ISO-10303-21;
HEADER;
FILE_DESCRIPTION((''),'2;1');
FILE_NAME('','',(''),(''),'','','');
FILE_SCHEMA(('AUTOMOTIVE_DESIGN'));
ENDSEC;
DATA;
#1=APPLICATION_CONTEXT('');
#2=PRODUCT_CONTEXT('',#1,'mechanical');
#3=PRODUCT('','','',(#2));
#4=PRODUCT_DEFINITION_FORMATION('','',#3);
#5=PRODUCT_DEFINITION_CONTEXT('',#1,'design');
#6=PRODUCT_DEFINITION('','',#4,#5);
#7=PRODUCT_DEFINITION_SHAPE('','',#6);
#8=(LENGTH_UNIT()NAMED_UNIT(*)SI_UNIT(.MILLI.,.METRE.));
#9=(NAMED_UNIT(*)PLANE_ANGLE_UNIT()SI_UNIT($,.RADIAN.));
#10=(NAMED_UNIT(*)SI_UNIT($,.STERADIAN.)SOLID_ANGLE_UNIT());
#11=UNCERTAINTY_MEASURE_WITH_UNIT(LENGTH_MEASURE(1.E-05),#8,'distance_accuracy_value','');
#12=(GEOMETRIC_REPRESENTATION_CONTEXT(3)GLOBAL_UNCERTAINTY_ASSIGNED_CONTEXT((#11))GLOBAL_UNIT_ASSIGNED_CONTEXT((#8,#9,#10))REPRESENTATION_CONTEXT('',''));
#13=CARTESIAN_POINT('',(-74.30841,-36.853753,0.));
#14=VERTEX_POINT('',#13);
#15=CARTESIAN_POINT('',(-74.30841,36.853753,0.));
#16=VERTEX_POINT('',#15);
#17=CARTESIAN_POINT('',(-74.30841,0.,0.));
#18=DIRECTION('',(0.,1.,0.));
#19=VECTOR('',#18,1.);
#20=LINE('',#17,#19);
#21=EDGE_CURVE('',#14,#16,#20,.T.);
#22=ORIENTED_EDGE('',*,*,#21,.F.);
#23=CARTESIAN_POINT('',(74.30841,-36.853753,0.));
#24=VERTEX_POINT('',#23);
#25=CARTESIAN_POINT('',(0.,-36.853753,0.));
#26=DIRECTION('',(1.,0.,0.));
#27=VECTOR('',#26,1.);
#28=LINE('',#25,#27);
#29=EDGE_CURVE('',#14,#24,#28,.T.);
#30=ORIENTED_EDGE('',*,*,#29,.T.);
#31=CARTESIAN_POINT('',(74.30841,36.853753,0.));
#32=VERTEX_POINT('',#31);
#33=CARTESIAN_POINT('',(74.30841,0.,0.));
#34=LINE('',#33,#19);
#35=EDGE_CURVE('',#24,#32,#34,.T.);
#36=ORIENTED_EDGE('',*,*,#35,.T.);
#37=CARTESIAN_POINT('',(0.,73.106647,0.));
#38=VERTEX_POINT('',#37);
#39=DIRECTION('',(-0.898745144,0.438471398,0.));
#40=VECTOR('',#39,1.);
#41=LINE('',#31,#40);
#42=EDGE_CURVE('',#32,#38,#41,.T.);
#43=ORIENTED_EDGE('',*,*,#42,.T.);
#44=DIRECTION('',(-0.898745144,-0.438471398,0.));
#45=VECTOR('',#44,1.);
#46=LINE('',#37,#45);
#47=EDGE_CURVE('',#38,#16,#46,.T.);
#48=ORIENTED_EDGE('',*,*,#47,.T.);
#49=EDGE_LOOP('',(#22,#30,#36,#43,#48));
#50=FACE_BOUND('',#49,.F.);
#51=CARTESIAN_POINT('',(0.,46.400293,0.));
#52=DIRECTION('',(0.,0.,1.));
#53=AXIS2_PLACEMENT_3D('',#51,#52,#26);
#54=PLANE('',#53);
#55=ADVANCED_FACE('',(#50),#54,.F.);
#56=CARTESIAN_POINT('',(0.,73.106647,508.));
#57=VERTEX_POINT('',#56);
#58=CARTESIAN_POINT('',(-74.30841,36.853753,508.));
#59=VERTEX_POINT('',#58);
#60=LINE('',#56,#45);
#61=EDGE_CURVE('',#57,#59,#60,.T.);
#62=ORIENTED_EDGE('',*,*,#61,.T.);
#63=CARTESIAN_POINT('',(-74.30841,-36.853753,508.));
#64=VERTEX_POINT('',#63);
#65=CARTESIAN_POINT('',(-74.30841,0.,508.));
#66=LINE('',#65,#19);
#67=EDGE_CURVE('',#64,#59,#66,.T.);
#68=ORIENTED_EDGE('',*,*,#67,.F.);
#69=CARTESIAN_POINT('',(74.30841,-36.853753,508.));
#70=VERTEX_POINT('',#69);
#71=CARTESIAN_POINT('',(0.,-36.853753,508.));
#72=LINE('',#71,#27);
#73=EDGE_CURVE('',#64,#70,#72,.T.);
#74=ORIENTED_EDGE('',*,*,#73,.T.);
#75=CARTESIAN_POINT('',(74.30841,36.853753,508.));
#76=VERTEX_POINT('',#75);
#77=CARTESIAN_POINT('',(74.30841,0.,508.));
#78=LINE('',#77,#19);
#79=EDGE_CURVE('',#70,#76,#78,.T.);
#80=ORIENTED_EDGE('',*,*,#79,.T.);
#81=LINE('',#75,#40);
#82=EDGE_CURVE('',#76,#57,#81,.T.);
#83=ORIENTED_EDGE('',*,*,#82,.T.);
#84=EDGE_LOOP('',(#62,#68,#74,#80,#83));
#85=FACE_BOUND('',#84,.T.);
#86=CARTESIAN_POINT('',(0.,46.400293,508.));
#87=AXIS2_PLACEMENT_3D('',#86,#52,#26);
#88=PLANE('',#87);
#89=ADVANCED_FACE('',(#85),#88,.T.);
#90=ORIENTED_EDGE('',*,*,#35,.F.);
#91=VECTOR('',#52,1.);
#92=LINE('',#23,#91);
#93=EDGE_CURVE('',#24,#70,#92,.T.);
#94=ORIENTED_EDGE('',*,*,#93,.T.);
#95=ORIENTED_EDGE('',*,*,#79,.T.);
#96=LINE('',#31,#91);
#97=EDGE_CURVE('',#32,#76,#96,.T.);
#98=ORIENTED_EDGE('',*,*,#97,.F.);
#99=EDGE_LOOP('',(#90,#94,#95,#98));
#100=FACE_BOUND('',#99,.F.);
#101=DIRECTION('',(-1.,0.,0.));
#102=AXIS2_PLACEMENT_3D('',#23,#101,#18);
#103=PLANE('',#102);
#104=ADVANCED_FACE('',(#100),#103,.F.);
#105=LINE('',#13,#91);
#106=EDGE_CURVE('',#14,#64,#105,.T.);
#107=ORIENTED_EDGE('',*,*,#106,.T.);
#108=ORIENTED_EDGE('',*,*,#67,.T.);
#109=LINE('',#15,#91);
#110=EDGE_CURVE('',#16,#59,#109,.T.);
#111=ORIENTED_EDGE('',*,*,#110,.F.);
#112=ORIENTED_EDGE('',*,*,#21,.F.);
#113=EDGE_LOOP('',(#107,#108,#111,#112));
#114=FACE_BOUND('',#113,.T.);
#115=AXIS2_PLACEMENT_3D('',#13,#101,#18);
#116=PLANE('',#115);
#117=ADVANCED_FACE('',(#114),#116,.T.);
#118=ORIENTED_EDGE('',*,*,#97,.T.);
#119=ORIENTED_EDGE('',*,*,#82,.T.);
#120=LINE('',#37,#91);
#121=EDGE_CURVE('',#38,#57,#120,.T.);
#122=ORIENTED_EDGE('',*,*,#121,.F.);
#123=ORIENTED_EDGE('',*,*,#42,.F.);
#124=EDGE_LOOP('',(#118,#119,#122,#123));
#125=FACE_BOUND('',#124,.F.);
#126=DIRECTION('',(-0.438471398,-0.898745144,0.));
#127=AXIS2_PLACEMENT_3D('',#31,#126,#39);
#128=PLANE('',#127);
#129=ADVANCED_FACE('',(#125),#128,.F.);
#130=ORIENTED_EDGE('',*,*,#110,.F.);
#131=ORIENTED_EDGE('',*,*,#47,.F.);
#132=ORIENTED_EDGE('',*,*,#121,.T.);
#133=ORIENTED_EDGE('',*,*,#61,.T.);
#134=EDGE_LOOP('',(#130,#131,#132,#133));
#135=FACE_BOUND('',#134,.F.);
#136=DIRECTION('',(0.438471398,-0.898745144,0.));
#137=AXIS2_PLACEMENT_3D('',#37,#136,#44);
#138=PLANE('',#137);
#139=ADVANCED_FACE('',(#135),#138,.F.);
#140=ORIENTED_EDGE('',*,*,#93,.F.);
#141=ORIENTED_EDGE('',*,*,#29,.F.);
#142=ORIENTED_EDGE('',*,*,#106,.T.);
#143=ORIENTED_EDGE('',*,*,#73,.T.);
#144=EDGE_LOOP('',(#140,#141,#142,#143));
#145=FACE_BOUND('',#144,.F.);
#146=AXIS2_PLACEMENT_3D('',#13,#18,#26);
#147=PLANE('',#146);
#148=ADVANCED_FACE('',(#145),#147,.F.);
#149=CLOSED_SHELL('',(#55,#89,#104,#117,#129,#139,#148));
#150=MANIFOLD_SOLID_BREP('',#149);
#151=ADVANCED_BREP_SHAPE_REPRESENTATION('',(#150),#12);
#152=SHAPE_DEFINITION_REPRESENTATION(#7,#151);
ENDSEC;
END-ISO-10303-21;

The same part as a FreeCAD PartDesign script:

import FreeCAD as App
import Part
import Sketcher
Q = App.Units.Quantity

doc = App.newDocument("Part")
body = doc.addObject("PartDesign::Body", "Body")

# Sketch on XY plane
sketch1 = doc.addObject("Sketcher::SketchObject", "Sketch")
body.addObject(sketch1)
sketch1.AttachmentSupport = (doc.XY_Plane, [""])
sketch1.MapMode = "FlatFace"
sketch1.addGeometry(Part.LineSegment(App.Vector(0, 73, 0), App.Vector(-74, 37, 0)), False)
sketch1.addGeometry(Part.LineSegment(App.Vector(-74, 37, 0), App.Vector(-74, -37, 0)), False)
sketch1.addGeometry(Part.LineSegment(App.Vector(-74, -37, 0), App.Vector(74, -37, 0)), False)
sketch1.addGeometry(Part.LineSegment(App.Vector(74, -37, 0), App.Vector(74, 37, 0)), False)
sketch1.addGeometry(Part.LineSegment(App.Vector(74, 37, 0), App.Vector(0, 73, 0)), False)
sketch1.addConstraint(Sketcher.Constraint("Coincident", 0, 2, 1, 1))
sketch1.addConstraint(Sketcher.Constraint("Coincident", 1, 2, 2, 1))
sketch1.addConstraint(Sketcher.Constraint("Coincident", 2, 2, 3, 1))
sketch1.addConstraint(Sketcher.Constraint("Coincident", 3, 2, 4, 1))
sketch1.addConstraint(Sketcher.Constraint("Coincident", 4, 2, 0, 1))
sketch1.addConstraint(Sketcher.Constraint("Vertical", 1))
sketch1.addConstraint(Sketcher.Constraint("Horizontal", 2))
sketch1.addConstraint(Sketcher.Constraint("Vertical", 3))
sketch1.addConstraint(Sketcher.Constraint("Symmetric", 0, 2, 2, 2, -1, 1))
sketch1.addConstraint(Sketcher.Constraint("PointOnObject", 4, 2, -2))
sketch1.addConstraint(Sketcher.Constraint("Horizontal", 0, 2, 3, 2))
sketch1.addConstraint(Sketcher.Constraint("DistanceX", 2, 1, 2, 2, Q("148.61682 mm")))
sketch1.addConstraint(Sketcher.Constraint("DistanceY", 1, 2, 4, 2, Q("109.9604 mm")))
sketch1.addConstraint(Sketcher.Constraint("Distance", 0, Q("82.68018 mm")))
pad1 = doc.addObject("PartDesign::Pad", "Pad")
body.addObject(pad1)
pad1.Profile = sketch1
pad1.Length = Q("20 in")

doc.recompute()
